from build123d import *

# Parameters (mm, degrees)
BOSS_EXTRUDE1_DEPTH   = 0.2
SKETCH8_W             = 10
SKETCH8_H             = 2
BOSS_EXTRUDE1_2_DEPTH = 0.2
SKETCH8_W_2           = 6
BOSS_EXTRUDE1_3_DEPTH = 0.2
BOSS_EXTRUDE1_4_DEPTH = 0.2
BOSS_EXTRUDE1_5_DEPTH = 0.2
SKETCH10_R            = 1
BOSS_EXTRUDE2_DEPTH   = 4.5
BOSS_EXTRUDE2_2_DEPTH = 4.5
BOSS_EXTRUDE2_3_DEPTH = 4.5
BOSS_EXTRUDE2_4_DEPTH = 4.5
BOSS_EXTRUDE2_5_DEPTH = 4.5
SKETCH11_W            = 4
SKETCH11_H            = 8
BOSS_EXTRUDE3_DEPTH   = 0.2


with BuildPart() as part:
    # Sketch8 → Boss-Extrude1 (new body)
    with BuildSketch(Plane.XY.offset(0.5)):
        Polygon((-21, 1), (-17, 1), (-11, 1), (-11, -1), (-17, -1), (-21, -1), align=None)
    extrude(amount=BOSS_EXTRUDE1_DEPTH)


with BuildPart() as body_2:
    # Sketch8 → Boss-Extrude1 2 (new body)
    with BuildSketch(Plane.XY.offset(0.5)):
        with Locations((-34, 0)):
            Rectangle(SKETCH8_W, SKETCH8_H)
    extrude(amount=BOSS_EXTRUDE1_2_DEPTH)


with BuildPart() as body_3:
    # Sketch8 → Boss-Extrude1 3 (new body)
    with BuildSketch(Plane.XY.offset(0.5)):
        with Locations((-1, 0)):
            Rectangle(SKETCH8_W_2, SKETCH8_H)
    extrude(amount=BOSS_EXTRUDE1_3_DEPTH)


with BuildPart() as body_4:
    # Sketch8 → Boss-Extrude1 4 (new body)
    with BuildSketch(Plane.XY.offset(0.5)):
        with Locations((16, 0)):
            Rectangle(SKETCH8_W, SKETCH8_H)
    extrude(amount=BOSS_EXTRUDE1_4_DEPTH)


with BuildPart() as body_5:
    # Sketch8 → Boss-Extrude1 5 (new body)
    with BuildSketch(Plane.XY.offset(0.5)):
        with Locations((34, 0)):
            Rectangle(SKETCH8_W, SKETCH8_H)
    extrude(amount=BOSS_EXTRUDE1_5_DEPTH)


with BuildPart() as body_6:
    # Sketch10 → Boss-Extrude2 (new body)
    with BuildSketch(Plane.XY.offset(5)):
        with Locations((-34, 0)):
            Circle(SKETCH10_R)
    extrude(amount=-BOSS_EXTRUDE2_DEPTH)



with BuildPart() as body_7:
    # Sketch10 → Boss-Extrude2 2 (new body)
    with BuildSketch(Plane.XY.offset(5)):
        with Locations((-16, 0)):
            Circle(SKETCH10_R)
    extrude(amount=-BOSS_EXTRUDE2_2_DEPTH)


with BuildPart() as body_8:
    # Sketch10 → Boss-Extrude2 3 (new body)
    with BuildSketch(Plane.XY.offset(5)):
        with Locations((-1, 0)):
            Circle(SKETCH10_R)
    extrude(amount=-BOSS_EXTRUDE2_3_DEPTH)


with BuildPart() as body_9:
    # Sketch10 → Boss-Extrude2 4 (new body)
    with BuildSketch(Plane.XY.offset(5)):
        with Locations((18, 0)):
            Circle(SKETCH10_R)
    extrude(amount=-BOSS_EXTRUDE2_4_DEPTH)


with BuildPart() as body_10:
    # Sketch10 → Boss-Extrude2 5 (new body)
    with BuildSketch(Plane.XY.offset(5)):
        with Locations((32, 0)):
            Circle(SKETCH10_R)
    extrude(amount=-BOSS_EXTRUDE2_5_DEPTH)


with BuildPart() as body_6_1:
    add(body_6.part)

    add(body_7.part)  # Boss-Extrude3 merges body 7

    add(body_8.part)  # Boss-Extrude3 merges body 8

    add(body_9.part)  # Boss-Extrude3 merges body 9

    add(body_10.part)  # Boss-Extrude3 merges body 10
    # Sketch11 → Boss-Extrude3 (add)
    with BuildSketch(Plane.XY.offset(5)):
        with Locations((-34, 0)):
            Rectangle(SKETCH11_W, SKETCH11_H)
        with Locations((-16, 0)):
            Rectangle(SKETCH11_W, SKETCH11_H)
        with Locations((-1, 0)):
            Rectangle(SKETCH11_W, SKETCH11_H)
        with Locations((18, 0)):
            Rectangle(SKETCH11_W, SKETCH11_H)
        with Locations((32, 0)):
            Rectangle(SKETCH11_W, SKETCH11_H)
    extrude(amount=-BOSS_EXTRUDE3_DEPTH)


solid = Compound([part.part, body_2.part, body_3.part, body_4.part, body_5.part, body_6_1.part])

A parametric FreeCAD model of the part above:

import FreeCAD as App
import Part
import Sketcher
Q = App.Units.Quantity


def add_polygon(sketch, points):
    """Adds a closed chain of lines whose ends are joined by coincident constraints."""
    first, n = sketch.GeometryCount, len(points)
    for a, b in zip(points, points[1:] + points[:1]):
        sketch.addGeometry(Part.LineSegment(App.Vector(*a, 0), App.Vector(*b, 0)), False)
    for i in range(n):
        sketch.addConstraint(Sketcher.Constraint("Coincident", first + i, 2, first + (i + 1) % n, 1))

doc = App.newDocument("Part")
body = doc.addObject("PartDesign::Body", "Body")

# Sketch on XY plane
sketch1 = body.newObject("Sketcher::SketchObject", "Sketch")
sketch1.AttachmentSupport = (doc.getObject("XY_Plane"), [""])
sketch1.MapMode = "FlatFace"
sketch1.AttachmentOffset = App.Placement(App.Vector(0, 0, 0.5), App.Rotation())
add_polygon(sketch1, [(-11, 1), (-21, 1), (-21, -1), (-11, -1)])  # lines 0-3
sketch1.addConstraint(Sketcher.Constraint("Horizontal", 0))
sketch1.addConstraint(Sketcher.Constraint("Vertical", 1))
sketch1.addConstraint(Sketcher.Constraint("Horizontal", 2))
sketch1.addConstraint(Sketcher.Constraint("Vertical", 3))
sketch1.addConstraint(Sketcher.Constraint("DistanceX", 0, 2, 0, 1, Q("10 mm")))
sketch1.addConstraint(Sketcher.Constraint("DistanceY", 1, 2, 1, 1, Q("2 mm")))
sketch1.addConstraint(Sketcher.Constraint("DistanceX", 0, 2, -1, 1, Q("21 mm")))
sketch1.addConstraint(Sketcher.Constraint("DistanceY", -1, 1, 0, 2, Q("1 mm")))
pad1 = body.newObject("PartDesign::Pad", "Pad")
pad1.Profile = sketch1
pad1.Length = 0.2
body2 = doc.addObject("PartDesign::Body", "Body001")

# Sketch on XY plane
sketch2 = body2.newObject("Sketcher::SketchObject", "Sketch001")
sketch2.AttachmentSupport = (doc.getObject("XY_Plane001"), [""])
sketch2.MapMode = "FlatFace"
sketch2.AttachmentOffset = App.Placement(App.Vector(0, 0, 0.5), App.Rotation())
add_polygon(sketch2, [(-39, 1), (-39, -1), (-29, -1), (-29, 1)])  # lines 0-3
sketch2.addConstraint(Sketcher.Constraint("Vertical", 0))
sketch2.addConstraint(Sketcher.Constraint("Horizontal", 1))
sketch2.addConstraint(Sketcher.Constraint("Vertical", 2))
sketch2.addConstraint(Sketcher.Constraint("Horizontal", 3))
sketch2.addConstraint(Sketcher.Constraint("DistanceX", 1, 1, 1, 2, Q("10 mm")))
sketch2.addConstraint(Sketcher.Constraint("DistanceY", 0, 2, 0, 1, Q("2 mm")))
sketch2.addConstraint(Sketcher.Constraint("DistanceX", 0, 2, -1, 1, Q("39 mm")))
sketch2.addConstraint(Sketcher.Constraint("DistanceY", 0, 2, -1, 1, Q("1 mm")))
pad2 = body2.newObject("PartDesign::Pad", "Pad001")
pad2.Profile = sketch2
pad2.Length = 0.2
body3 = doc.addObject("PartDesign::Body", "Body002")

# Sketch on XY plane
sketch3 = body3.newObject("Sketcher::SketchObject", "Sketch002")
sketch3.AttachmentSupport = (doc.getObject("XY_Plane002"), [""])
sketch3.MapMode = "FlatFace"
sketch3.AttachmentOffset = App.Placement(App.Vector(0, 0, 0.5), App.Rotation())
add_polygon(sketch3, [(-4, 1), (-4, -1), (2, -1), (2, 1)])  # lines 0-3
sketch3.addConstraint(Sketcher.Constraint("Vertical", 0))
sketch3.addConstraint(Sketcher.Constraint("Horizontal", 1))
sketch3.addConstraint(Sketcher.Constraint("Vertical", 2))
sketch3.addConstraint(Sketcher.Constraint("Horizontal", 3))
sketch3.addConstraint(Sketcher.Constraint("DistanceX", 1, 1, 1, 2, Q("6 mm")))
sketch3.addConstraint(Sketcher.Constraint("DistanceY", 0, 2, 0, 1, Q("2 mm")))
sketch3.addConstraint(Sketcher.Constraint("DistanceX", 0, 2, -1, 1, Q("4 mm")))
sketch3.addConstraint(Sketcher.Constraint("DistanceY", 0, 2, -1, 1, Q("1 mm")))
pad3 = body3.newObject("PartDesign::Pad", "Pad002")
pad3.Profile = sketch3
pad3.Length = 0.2
body4 = doc.addObject("PartDesign::Body", "Body003")

# Sketch on XY plane
sketch4 = body4.newObject("Sketcher::SketchObject", "Sketch003")
sketch4.AttachmentSupport = (doc.getObject("XY_Plane003"), [""])
sketch4.MapMode = "FlatFace"
sketch4.AttachmentOffset = App.Placement(App.Vector(0, 0, 0.5), App.Rotation())
add_polygon(sketch4, [(11, 1), (11, -1), (21, -1), (21, 1)])  # lines 0-3
sketch4.addConstraint(Sketcher.Constraint("Vertical", 0))
sketch4.addConstraint(Sketcher.Constraint("Horizontal", 1))
sketch4.addConstraint(Sketcher.Constraint("Vertical", 2))
sketch4.addConstraint(Sketcher.Constraint("Horizontal", 3))
sketch4.addConstraint(Sketcher.Constraint("DistanceX", 1, 1, 1, 2, Q("10 mm")))
sketch4.addConstraint(Sketcher.Constraint("DistanceY", 0, 2, 0, 1, Q("2 mm")))
sketch4.addConstraint(Sketcher.Constraint("DistanceX", -1, 1, 0, 2, Q("11 mm")))
sketch4.addConstraint(Sketcher.Constraint("DistanceY", 0, 2, -1, 1, Q("1 mm")))
pad4 = body4.newObject("PartDesign::Pad", "Pad003")
pad4.Profile = sketch4
pad4.Length = 0.2
body5 = doc.addObject("PartDesign::Body", "Body004")

# Sketch on XY plane
sketch5 = body5.newObject("Sketcher::SketchObject", "Sketch004")
sketch5.AttachmentSupport = (doc.getObject("XY_Plane004"), [""])
sketch5.MapMode = "FlatFace"
sketch5.AttachmentOffset = App.Placement(App.Vector(0, 0, 0.5), App.Rotation())
add_polygon(sketch5, [(29, 1), (29, -1), (39, -1), (39, 1)])  # lines 0-3
sketch5.addConstraint(Sketcher.Constraint("Vertical", 0))
sketch5.addConstraint(Sketcher.Constraint("Horizontal", 1))
sketch5.addConstraint(Sketcher.Constraint("Vertical", 2))
sketch5.addConstraint(Sketcher.Constraint("Horizontal", 3))
sketch5.addConstraint(Sketcher.Constraint("DistanceX", 1, 1, 1, 2, Q("10 mm")))
sketch5.addConstraint(Sketcher.Constraint("DistanceY", 0, 2, 0, 1, Q("2 mm")))
sketch5.addConstraint(Sketcher.Constraint("DistanceX", -1, 1, 0, 2, Q("29 mm")))
sketch5.addConstraint(Sketcher.Constraint("DistanceY", 0, 2, -1, 1, Q("1 mm")))
pad5 = body5.newObject("PartDesign::Pad", "Pad004")
pad5.Profile = sketch5
pad5.Length = 0.2
body6 = doc.addObject("PartDesign::Body", "Body005")

# Sketch on XY plane
sketch6 = body6.newObject("Sketcher::SketchObject", "Sketch005")
sketch6.AttachmentSupport = (doc.getObject("XY_Plane005"), [""])
sketch6.MapMode = "FlatFace"
sketch6.AttachmentOffset = App.Placement(App.Vector(0, 0, 5), App.Rotation())
sketch6.addGeometry(Part.Circle(App.Vector(-34, 0, 0), App.Vector(0, 0, 1), 1), False)
sketch6.addConstraint(Sketcher.Constraint("PointOnObject", 0, 3, -1))
sketch6.addConstraint(Sketcher.Constraint("Diameter", 0, Q("2 mm")))
sketch6.addConstraint(Sketcher.Constraint("DistanceX", 0, 3, -1, 1, Q("34 mm")))
pad6 = body6.newObject("PartDesign::Pad", "Pad005")
pad6.Profile = sketch6
pad6.Length = 4.5
pad6.Reversed = True
body7 = doc.addObject("PartDesign::Body", "Body006")

# Sketch on XY plane
sketch7 = body7.newObject("Sketcher::SketchObject", "Sketch006")
sketch7.AttachmentSupport = (doc.getObject("XY_Plane006"), [""])
sketch7.MapMode = "FlatFace"
sketch7.AttachmentOffset = App.Placement(App.Vector(0, 0, 5), App.Rotation())
sketch7.addGeometry(Part.Circle(App.Vector(-16, 0, 0), App.Vector(0, 0, 1), 1), False)
sketch7.addConstraint(Sketcher.Constraint("PointOnObject", 0, 3, -1))
sketch7.addConstraint(Sketcher.Constraint("Diameter", 0, Q("2 mm")))
sketch7.addConstraint(Sketcher.Constraint("DistanceX", 0, 3, -1, 1, Q("16 mm")))
pad7 = body7.newObject("PartDesign::Pad", "Pad006")
pad7.Profile = sketch7
pad7.Length = 4.5
pad7.Reversed = True
body8 = doc.addObject("PartDesign::Body", "Body007")

# Sketch on XY plane
sketch8 = body8.newObject("Sketcher::SketchObject", "Sketch007")
sketch8.AttachmentSupport = (doc.getObject("XY_Plane007"), [""])
sketch8.MapMode = "FlatFace"
sketch8.AttachmentOffset = App.Placement(App.Vector(0, 0, 5), App.Rotation())
sketch8.addGeometry(Part.Circle(App.Vector(-1, 0, 0), App.Vector(0, 0, 1), 1), False)
sketch8.addConstraint(Sketcher.Constraint("PointOnObject", 0, 3, -1))
sketch8.addConstraint(Sketcher.Constraint("Diameter", 0, Q("2 mm")))
sketch8.addConstraint(Sketcher.Constraint("DistanceX", 0, 3, -1, 1, Q("1 mm")))
pad8 = body8.newObject("PartDesign::Pad", "Pad007")
pad8.Profile = sketch8
pad8.Length = 4.5
pad8.Reversed = True
body9 = doc.addObject("PartDesign::Body", "Body008")

# Sketch on XY plane
sketch9 = body9.newObject("Sketcher::SketchObject", "Sketch008")
sketch9.AttachmentSupport = (doc.getObject("XY_Plane008"), [""])
sketch9.MapMode = "FlatFace"
sketch9.AttachmentOffset = App.Placement(App.Vector(0, 0, 5), App.Rotation())
sketch9.addGeometry(Part.Circle(App.Vector(18, 0, 0), App.Vector(0, 0, 1), 1), False)
sketch9.addConstraint(Sketcher.Constraint("PointOnObject", 0, 3, -1))
sketch9.addConstraint(Sketcher.Constraint("Diameter", 0, Q("2 mm")))
sketch9.addConstraint(Sketcher.Constraint("DistanceX", -1, 1, 0, 3, Q("18 mm")))
pad9 = body9.newObject("PartDesign::Pad", "Pad008")
pad9.Profile = sketch9
pad9.Length = 4.5
pad9.Reversed = True
body10 = doc.addObject("PartDesign::Body", "Body009")

# Sketch on XY plane
sketch10 = body10.newObject("Sketcher::SketchObject", "Sketch009")
sketch10.AttachmentSupport = (doc.getObject("XY_Plane009"), [""])
sketch10.MapMode = "FlatFace"
sketch10.AttachmentOffset = App.Placement(App.Vector(0, 0, 5), App.Rotation())
sketch10.addGeometry(Part.Circle(App.Vector(32, 0, 0), App.Vector(0, 0, 1), 1), False)
sketch10.addConstraint(Sketcher.Constraint("PointOnObject", 0, 3, -1))
sketch10.addConstraint(Sketcher.Constraint("Diameter", 0, Q("2 mm")))
sketch10.addConstraint(Sketcher.Constraint("DistanceX", -1, 1, 0, 3, Q("32 mm")))
pad10 = body10.newObject("PartDesign::Pad", "Pad009")
pad10.Profile = sketch10
pad10.Length = 4.5
pad10.Reversed = True
body6.AllowCompound = True
doc.recompute()

boolean = body6.newObject("PartDesign::Boolean", "Boolean")
boolean.Type = "Fuse"
boolean.addObjects([body7])
doc.recompute()

boolean2 = body6.newObject("PartDesign::Boolean", "Boolean001")
boolean2.Type = "Fuse"
boolean2.addObjects([body8])
doc.recompute()

boolean3 = body6.newObject("PartDesign::Boolean", "Boolean002")
boolean3.Type = "Fuse"
boolean3.addObjects([body9])
doc.recompute()

boolean4 = body6.newObject("PartDesign::Boolean", "Boolean003")
boolean4.Type = "Fuse"
boolean4.addObjects([body10])

# Sketch on XY plane
sketch11 = body6.newObject("Sketcher::SketchObject", "Sketch010")
sketch11.AttachmentSupport = (doc.getObject("XY_Plane005"), [""])
sketch11.MapMode = "FlatFace"
sketch11.AttachmentOffset = App.Placement(App.Vector(0, 0, 5), App.Rotation())
add_polygon(sketch11, [(-36, 4), (-36, -4), (-32, -4), (-32, 4)])  # lines 0-3
add_polygon(sketch11, [(-18, 4), (-18, -4), (-14, -4), (-14, 4)])  # lines 4-7
add_polygon(sketch11, [(-3, 4), (-3, -4), (1, -4), (1, 4)])  # lines 8-11
add_polygon(sketch11, [(16, 4), (16, -4), (20, -4), (20, 4)])  # lines 12-15
add_polygon(sketch11, [(30, 4), (30, -4), (34, -4), (34, 4)])  # lines 16-19
sketch11.addConstraint(Sketcher.Constraint("Vertical", 0))
sketch11.addConstraint(Sketcher.Constraint("Horizontal", 1))
sketch11.addConstraint(Sketcher.Constraint("Vertical", 2))
sketch11.addConstraint(Sketcher.Constraint("Horizontal", 3))
sketch11.addConstraint(Sketcher.Constraint("Vertical", 4))
sketch11.addConstraint(Sketcher.Constraint("Horizontal", 5))
sketch11.addConstraint(Sketcher.Constraint("Vertical", 6))
sketch11.addConstraint(Sketcher.Constraint("Horizontal", 7))
sketch11.addConstraint(Sketcher.Constraint("Vertical", 8))
sketch11.addConstraint(Sketcher.Constraint("Horizontal", 9))
sketch11.addConstraint(Sketcher.Constraint("Vertical", 10))
sketch11.addConstraint(Sketcher.Constraint("Horizontal", 11))
sketch11.addConstraint(Sketcher.Constraint("Vertical", 12))
sketch11.addConstraint(Sketcher.Constraint("Horizontal", 13))
sketch11.addConstraint(Sketcher.Constraint("Vertical", 14))
sketch11.addConstraint(Sketcher.Constraint("Horizontal", 15))
sketch11.addConstraint(Sketcher.Constraint("Vertical", 16))
sketch11.addConstraint(Sketcher.Constraint("Horizontal", 17))
sketch11.addConstraint(Sketcher.Constraint("Vertical", 18))
sketch11.addConstraint(Sketcher.Constraint("Horizontal", 19))
sketch11.addConstraint(Sketcher.Constraint("Horizontal", 1, 2, 4, 2))
sketch11.addConstraint(Sketcher.Constraint("Horizontal", 3, 2, 6, 2))
sketch11.addConstraint(Sketcher.Constraint("Horizontal", 5, 2, 8, 2))
sketch11.addConstraint(Sketcher.Constraint("Horizontal", 7, 2, 10, 2))
sketch11.addConstraint(Sketcher.Constraint("Horizontal", 9, 2, 12, 2))
sketch11.addConstraint(Sketcher.Constraint("Horizontal", 11, 2, 14, 2))
sketch11.addConstraint(Sketcher.Constraint("Horizontal", 13, 2, 16, 2))
sketch11.addConstraint(Sketcher.Constraint("Horizontal", 15, 2, 18, 2))
sketch11.addConstraint(Sketcher.Constraint("Equal", 3, 5))
sketch11.addConstraint(Sketcher.Constraint("Equal", 7, 9))
sketch11.addConstraint(Sketcher.Constraint("Equal", 11, 13))
sketch11.addConstraint(Sketcher.Constraint("Equal", 15, 17))
sketch11.addConstraint(Sketcher.Constraint("DistanceX", 1, 1, 1, 2, Q("4 mm")))
sketch11.addConstraint(Sketcher.Constraint("DistanceY", 0, 2, 0, 1, Q("8 mm")))
sketch11.addConstraint(Sketcher.Constraint("DistanceX", 0, 2, -1, 1, Q("36 mm")))
sketch11.addConstraint(Sketcher.Constraint("DistanceY", 0, 2, -1, 1, Q("4 mm")))
sketch11.addConstraint(Sketcher.Constraint("DistanceX", 4, 2, -1, 1, Q("18 mm")))
sketch11.addConstraint(Sketcher.Constraint("DistanceX", 8, 2, -1, 1, Q("3 mm")))
sketch11.addConstraint(Sketcher.Constraint("DistanceX", -1, 1, 12, 2, Q("16 mm")))
sketch11.addConstraint(Sketcher.Constraint("DistanceX", -1, 1, 16, 2, Q("30 mm")))
pad11 = body6.newObject("PartDesign::Pad", "Pad010")
pad11.Profile = sketch11
pad11.Length = 0.2
pad11.Reversed = True

doc.recompute()
